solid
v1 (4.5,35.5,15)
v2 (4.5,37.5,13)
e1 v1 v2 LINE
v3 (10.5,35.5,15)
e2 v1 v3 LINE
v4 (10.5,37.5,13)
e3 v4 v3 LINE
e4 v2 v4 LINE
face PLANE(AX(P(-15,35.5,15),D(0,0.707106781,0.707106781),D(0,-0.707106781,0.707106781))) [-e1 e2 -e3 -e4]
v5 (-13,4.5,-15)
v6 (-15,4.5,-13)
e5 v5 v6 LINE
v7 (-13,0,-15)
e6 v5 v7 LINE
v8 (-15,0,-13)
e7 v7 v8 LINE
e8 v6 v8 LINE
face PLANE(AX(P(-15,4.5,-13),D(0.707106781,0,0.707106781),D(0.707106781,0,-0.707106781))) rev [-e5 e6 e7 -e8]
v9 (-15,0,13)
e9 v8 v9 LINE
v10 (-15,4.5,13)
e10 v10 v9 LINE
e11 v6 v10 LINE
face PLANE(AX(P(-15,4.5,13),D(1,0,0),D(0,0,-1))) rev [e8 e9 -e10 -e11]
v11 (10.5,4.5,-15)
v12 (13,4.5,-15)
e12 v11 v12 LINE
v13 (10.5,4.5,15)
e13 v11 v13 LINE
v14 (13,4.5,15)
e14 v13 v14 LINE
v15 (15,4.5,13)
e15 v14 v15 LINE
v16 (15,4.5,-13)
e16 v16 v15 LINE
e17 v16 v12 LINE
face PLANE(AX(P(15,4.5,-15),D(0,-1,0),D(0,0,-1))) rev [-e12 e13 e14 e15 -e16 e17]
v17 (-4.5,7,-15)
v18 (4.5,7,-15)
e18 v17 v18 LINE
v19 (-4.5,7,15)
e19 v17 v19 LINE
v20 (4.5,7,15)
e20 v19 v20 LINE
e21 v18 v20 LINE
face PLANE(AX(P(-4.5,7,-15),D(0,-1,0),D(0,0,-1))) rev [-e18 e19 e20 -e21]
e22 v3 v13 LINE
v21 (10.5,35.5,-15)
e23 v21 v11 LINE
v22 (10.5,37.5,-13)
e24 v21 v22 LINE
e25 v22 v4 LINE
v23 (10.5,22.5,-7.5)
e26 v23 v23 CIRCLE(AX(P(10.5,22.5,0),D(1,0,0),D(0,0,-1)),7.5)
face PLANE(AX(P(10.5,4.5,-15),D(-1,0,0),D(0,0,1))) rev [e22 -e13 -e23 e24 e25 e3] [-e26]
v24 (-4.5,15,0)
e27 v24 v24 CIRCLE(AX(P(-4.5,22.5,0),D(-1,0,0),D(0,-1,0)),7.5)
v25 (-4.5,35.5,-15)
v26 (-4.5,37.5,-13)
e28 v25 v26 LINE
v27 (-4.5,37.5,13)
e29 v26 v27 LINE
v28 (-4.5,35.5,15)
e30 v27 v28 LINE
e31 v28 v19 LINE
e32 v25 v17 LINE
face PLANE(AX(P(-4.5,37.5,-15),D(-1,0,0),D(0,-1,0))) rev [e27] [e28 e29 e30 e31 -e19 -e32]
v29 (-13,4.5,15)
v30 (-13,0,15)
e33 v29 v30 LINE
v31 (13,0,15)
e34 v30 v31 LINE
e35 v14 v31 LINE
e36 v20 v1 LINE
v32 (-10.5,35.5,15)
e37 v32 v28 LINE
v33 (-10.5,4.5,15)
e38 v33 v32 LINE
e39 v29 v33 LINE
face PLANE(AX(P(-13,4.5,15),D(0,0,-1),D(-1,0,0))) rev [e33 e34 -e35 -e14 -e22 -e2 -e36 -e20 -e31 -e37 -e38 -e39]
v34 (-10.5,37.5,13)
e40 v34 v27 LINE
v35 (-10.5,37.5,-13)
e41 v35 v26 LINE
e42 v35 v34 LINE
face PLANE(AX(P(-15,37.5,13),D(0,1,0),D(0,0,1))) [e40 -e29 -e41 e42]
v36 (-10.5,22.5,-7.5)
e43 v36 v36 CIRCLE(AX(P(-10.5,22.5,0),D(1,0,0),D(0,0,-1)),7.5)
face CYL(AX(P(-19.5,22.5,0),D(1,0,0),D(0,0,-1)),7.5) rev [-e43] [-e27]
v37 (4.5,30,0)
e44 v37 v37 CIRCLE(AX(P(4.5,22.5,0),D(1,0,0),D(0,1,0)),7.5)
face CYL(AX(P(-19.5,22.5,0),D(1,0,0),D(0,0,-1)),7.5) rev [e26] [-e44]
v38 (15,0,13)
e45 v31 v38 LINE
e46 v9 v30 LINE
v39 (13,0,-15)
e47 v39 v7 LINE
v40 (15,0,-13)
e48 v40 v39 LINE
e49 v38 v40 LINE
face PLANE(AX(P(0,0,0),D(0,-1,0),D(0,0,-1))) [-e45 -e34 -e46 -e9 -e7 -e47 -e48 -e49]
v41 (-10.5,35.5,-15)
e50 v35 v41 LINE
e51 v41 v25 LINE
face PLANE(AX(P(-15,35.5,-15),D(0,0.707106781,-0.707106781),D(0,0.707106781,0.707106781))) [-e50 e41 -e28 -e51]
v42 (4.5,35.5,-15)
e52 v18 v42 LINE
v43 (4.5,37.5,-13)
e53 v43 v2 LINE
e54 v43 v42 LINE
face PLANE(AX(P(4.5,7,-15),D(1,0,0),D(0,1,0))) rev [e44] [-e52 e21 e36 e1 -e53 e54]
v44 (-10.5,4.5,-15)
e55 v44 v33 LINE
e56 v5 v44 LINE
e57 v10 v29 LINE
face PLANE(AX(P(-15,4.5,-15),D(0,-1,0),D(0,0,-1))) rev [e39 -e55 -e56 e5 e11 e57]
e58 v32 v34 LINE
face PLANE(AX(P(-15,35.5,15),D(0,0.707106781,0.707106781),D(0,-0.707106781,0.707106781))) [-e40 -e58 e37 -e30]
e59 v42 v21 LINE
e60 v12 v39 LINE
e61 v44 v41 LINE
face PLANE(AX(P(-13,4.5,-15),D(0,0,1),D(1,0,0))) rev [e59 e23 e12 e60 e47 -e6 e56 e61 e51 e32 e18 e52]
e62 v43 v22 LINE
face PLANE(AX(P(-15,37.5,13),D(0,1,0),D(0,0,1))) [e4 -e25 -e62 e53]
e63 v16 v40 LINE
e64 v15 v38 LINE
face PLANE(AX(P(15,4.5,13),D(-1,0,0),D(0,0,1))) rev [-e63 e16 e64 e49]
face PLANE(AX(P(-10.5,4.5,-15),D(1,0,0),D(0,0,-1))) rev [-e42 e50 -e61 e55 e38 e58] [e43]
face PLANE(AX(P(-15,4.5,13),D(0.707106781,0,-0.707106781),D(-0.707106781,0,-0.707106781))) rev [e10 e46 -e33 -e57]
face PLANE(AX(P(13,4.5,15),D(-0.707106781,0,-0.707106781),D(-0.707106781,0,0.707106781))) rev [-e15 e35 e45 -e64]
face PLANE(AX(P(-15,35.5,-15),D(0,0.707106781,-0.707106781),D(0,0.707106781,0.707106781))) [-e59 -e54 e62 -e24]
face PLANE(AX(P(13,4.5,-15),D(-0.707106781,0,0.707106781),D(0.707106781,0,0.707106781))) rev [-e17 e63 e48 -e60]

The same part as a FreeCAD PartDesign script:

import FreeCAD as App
import Part
import Sketcher
from FreeCAD import Vector


def add_polygon(sketch, points):
    """Adds a closed chain of lines whose ends are joined by coincident constraints."""
    first, n = sketch.GeometryCount, len(points)
    for a, b in zip(points, points[1:] + points[:1]):
        sketch.addGeometry(Part.LineSegment(App.Vector(*a, 0), App.Vector(*b, 0)), False)
    for i in range(n):
        sketch.addConstraint(Sketcher.Constraint("Coincident", first + i, 2, first + (i + 1) % n, 1))

doc = App.newDocument("Part")
body = doc.addObject("PartDesign::Body", "Body")

sketch1 = body.newObject("Sketcher::SketchObject", "Sketch")
sketch1.AttachmentSupport = (doc.getObject("XZ_Plane"), [""])
sketch1.MapMode = "FlatFace"
add_polygon(sketch1, [(-13, -15), (-15, -13), (-15, 13), (-13, 15), (13, 15), (15, 13), (15, -13), (13, -15)])
sketch1.addConstraint([
    Sketcher.Constraint("Vertical", 1),
    Sketcher.Constraint("Horizontal", 3),
    Sketcher.Constraint("Vertical", 5),
    Sketcher.Constraint("Horizontal", 7),
    Sketcher.Constraint("Symmetric", 0, 2, 4, 2, -1, 1),
    Sketcher.Constraint("Symmetric", 2, 2, 6, 2, -1, 1),
    Sketcher.Constraint("Perpendicular", 0, 2),
    Sketcher.Constraint("Perpendicular", 2, 4),
    Sketcher.Constraint("Perpendicular", 4, 6),
    Sketcher.Constraint("Horizontal", 1, 2, 4, 2),
    Sketcher.Constraint("Vertical", 3, 2, 6, 2),
    Sketcher.Constraint("Equal", 7, 1),
    Sketcher.Constraint("DistanceX", 3, 1, 3, 2, 26.0),
    Sketcher.Constraint("DistanceX", 0, 2, -1, 1, 15.0),
])
pad1 = body.newObject("PartDesign::Pad", "Pad")
pad1.Profile = sketch1
pad1.Length = 4.5
pad1.Reversed = True

sketch2 = body.newObject("Sketcher::SketchObject", "Sketch001")
sketch2.AttachmentSupport = (doc.getObject("YZ_Plane"), [""])
sketch2.MapMode = "FlatFace"
sketch2.AttachmentOffset = App.Placement(Vector(0, 0, 15), App.Rotation())
add_polygon(sketch2, [(35.5, 15), (4.5, 15), (4.5, -15), (35.5, -15), (37.5, -13), (37.5, 13)])
sketch2.addConstraint([
    Sketcher.Constraint("Horizontal", 0),
    Sketcher.Constraint("Vertical", 1),
    Sketcher.Constraint("Horizontal", 2),
    Sketcher.Constraint("Vertical", 4),
    Sketcher.Constraint("Symmetric", 2, 2, 5, 2, -1),
    Sketcher.Constraint("Perpendicular", 3, 5),
    Sketcher.Constraint("Equal", 3, 5),
    Sketcher.Constraint("DistanceX", 0, 2, 0, 1, 31.0),
    Sketcher.Constraint("DistanceY", 1, 2, 1, 1, 30.0),
    Sketcher.Constraint("DistanceY", 4, 1, 4, 2, 26.0),
    Sketcher.Constraint("DistanceX", -1, 1, 0, 2, 4.5),
])
pad2 = body.newObject("PartDesign::Pad", "Pad001")
pad2.Profile = sketch2
pad2.Length = 30
pad2.Reversed = True

sketch3 = body.newObject("Sketcher::SketchObject", "Sketch002")
sketch3.AttachmentSupport = (doc.getObject("XY_Plane"), [""])
sketch3.MapMode = "FlatFace"
sketch3.AttachmentOffset = App.Placement(Vector(0, 0, 15), App.Rotation())
add_polygon(sketch3, [(-15, 37.5), (-15, 4.5), (-10.5, 4.5), (-10.5, 37.5)])
add_polygon(sketch3, [(10.5, 37.5), (10.5, 4.5), (15, 4.5), (15, 37.5)])
add_polygon(sketch3, [(-4.5, 37.5), (-4.5, 7), (4.5, 7), (4.5, 37.5)])
sketch3.addConstraint([
    Sketcher.Constraint("Vertical", 0),
    Sketcher.Constraint("Horizontal", 1),
    Sketcher.Constraint("Vertical", 2),
    Sketcher.Constraint("Horizontal", 3),
    Sketcher.Constraint("Vertical", 4),
    Sketcher.Constraint("Horizontal", 5),
    Sketcher.Constraint("Vertical", 6),
    Sketcher.Constraint("Horizontal", 7),
    Sketcher.Constraint("Vertical", 8),
    Sketcher.Constraint("Horizontal", 9),
    Sketcher.Constraint("Vertical", 10),
    Sketcher.Constraint("Horizontal", 11),
    Sketcher.Constraint("Symmetric", 1, 2, 4, 2, -2),
    Sketcher.Constraint("Symmetric", 3, 2, 6, 2, -2),
    Sketcher.Constraint("Horizontal", 7, 2, 10, 2),
    Sketcher.Constraint("DistanceX", 9, 1, 9, 2, 9.0),
    Sketcher.Constraint("DistanceY", 0, 2, 0, 1, 33.0),
    Sketcher.Constraint("DistanceX", 1, 1, 1, 2, 4.5),
    Sketcher.Constraint("DistanceY", 8, 2, 8, 1, 30.5),
    Sketcher.Constraint("DistanceX", 0, 2, -1, 1, 15.0),
    Sketcher.Constraint("DistanceY", -1, 1, 8, 2, 7.0),
    Sketcher.Constraint("DistanceX", 1, 2, 8, 2, 6.0),
])
pocket1 = body.newObject("PartDesign::Pocket", "Pocket")
pocket1.Profile = sketch3
pocket1.Length = 30

sketch4 = body.newObject("Sketcher::SketchObject", "Sketch003")
sketch4.AttachmentSupport = (doc.getObject("YZ_Plane"), [""])
sketch4.MapMode = "FlatFace"
sketch4.AttachmentOffset = App.Placement(Vector(0, 0, 10.5), App.Rotation())
sketch4.addGeometry(Part.Circle(Vector(22.5, 0, 0), Vector(0, 0, 1), 7.5), False)
sketch4.addConstraint([
    Sketcher.Constraint("PointOnObject", 0, 3, -1),
    Sketcher.Constraint("Diameter", 0, 15.0),
    Sketcher.Constraint("DistanceX", -1, 1, 0, 3, 22.5),
])
pocket2 = body.newObject("PartDesign::Pocket", "Pocket001")
pocket2.Profile = sketch4
pocket2.Length = 30

doc.recompute()
